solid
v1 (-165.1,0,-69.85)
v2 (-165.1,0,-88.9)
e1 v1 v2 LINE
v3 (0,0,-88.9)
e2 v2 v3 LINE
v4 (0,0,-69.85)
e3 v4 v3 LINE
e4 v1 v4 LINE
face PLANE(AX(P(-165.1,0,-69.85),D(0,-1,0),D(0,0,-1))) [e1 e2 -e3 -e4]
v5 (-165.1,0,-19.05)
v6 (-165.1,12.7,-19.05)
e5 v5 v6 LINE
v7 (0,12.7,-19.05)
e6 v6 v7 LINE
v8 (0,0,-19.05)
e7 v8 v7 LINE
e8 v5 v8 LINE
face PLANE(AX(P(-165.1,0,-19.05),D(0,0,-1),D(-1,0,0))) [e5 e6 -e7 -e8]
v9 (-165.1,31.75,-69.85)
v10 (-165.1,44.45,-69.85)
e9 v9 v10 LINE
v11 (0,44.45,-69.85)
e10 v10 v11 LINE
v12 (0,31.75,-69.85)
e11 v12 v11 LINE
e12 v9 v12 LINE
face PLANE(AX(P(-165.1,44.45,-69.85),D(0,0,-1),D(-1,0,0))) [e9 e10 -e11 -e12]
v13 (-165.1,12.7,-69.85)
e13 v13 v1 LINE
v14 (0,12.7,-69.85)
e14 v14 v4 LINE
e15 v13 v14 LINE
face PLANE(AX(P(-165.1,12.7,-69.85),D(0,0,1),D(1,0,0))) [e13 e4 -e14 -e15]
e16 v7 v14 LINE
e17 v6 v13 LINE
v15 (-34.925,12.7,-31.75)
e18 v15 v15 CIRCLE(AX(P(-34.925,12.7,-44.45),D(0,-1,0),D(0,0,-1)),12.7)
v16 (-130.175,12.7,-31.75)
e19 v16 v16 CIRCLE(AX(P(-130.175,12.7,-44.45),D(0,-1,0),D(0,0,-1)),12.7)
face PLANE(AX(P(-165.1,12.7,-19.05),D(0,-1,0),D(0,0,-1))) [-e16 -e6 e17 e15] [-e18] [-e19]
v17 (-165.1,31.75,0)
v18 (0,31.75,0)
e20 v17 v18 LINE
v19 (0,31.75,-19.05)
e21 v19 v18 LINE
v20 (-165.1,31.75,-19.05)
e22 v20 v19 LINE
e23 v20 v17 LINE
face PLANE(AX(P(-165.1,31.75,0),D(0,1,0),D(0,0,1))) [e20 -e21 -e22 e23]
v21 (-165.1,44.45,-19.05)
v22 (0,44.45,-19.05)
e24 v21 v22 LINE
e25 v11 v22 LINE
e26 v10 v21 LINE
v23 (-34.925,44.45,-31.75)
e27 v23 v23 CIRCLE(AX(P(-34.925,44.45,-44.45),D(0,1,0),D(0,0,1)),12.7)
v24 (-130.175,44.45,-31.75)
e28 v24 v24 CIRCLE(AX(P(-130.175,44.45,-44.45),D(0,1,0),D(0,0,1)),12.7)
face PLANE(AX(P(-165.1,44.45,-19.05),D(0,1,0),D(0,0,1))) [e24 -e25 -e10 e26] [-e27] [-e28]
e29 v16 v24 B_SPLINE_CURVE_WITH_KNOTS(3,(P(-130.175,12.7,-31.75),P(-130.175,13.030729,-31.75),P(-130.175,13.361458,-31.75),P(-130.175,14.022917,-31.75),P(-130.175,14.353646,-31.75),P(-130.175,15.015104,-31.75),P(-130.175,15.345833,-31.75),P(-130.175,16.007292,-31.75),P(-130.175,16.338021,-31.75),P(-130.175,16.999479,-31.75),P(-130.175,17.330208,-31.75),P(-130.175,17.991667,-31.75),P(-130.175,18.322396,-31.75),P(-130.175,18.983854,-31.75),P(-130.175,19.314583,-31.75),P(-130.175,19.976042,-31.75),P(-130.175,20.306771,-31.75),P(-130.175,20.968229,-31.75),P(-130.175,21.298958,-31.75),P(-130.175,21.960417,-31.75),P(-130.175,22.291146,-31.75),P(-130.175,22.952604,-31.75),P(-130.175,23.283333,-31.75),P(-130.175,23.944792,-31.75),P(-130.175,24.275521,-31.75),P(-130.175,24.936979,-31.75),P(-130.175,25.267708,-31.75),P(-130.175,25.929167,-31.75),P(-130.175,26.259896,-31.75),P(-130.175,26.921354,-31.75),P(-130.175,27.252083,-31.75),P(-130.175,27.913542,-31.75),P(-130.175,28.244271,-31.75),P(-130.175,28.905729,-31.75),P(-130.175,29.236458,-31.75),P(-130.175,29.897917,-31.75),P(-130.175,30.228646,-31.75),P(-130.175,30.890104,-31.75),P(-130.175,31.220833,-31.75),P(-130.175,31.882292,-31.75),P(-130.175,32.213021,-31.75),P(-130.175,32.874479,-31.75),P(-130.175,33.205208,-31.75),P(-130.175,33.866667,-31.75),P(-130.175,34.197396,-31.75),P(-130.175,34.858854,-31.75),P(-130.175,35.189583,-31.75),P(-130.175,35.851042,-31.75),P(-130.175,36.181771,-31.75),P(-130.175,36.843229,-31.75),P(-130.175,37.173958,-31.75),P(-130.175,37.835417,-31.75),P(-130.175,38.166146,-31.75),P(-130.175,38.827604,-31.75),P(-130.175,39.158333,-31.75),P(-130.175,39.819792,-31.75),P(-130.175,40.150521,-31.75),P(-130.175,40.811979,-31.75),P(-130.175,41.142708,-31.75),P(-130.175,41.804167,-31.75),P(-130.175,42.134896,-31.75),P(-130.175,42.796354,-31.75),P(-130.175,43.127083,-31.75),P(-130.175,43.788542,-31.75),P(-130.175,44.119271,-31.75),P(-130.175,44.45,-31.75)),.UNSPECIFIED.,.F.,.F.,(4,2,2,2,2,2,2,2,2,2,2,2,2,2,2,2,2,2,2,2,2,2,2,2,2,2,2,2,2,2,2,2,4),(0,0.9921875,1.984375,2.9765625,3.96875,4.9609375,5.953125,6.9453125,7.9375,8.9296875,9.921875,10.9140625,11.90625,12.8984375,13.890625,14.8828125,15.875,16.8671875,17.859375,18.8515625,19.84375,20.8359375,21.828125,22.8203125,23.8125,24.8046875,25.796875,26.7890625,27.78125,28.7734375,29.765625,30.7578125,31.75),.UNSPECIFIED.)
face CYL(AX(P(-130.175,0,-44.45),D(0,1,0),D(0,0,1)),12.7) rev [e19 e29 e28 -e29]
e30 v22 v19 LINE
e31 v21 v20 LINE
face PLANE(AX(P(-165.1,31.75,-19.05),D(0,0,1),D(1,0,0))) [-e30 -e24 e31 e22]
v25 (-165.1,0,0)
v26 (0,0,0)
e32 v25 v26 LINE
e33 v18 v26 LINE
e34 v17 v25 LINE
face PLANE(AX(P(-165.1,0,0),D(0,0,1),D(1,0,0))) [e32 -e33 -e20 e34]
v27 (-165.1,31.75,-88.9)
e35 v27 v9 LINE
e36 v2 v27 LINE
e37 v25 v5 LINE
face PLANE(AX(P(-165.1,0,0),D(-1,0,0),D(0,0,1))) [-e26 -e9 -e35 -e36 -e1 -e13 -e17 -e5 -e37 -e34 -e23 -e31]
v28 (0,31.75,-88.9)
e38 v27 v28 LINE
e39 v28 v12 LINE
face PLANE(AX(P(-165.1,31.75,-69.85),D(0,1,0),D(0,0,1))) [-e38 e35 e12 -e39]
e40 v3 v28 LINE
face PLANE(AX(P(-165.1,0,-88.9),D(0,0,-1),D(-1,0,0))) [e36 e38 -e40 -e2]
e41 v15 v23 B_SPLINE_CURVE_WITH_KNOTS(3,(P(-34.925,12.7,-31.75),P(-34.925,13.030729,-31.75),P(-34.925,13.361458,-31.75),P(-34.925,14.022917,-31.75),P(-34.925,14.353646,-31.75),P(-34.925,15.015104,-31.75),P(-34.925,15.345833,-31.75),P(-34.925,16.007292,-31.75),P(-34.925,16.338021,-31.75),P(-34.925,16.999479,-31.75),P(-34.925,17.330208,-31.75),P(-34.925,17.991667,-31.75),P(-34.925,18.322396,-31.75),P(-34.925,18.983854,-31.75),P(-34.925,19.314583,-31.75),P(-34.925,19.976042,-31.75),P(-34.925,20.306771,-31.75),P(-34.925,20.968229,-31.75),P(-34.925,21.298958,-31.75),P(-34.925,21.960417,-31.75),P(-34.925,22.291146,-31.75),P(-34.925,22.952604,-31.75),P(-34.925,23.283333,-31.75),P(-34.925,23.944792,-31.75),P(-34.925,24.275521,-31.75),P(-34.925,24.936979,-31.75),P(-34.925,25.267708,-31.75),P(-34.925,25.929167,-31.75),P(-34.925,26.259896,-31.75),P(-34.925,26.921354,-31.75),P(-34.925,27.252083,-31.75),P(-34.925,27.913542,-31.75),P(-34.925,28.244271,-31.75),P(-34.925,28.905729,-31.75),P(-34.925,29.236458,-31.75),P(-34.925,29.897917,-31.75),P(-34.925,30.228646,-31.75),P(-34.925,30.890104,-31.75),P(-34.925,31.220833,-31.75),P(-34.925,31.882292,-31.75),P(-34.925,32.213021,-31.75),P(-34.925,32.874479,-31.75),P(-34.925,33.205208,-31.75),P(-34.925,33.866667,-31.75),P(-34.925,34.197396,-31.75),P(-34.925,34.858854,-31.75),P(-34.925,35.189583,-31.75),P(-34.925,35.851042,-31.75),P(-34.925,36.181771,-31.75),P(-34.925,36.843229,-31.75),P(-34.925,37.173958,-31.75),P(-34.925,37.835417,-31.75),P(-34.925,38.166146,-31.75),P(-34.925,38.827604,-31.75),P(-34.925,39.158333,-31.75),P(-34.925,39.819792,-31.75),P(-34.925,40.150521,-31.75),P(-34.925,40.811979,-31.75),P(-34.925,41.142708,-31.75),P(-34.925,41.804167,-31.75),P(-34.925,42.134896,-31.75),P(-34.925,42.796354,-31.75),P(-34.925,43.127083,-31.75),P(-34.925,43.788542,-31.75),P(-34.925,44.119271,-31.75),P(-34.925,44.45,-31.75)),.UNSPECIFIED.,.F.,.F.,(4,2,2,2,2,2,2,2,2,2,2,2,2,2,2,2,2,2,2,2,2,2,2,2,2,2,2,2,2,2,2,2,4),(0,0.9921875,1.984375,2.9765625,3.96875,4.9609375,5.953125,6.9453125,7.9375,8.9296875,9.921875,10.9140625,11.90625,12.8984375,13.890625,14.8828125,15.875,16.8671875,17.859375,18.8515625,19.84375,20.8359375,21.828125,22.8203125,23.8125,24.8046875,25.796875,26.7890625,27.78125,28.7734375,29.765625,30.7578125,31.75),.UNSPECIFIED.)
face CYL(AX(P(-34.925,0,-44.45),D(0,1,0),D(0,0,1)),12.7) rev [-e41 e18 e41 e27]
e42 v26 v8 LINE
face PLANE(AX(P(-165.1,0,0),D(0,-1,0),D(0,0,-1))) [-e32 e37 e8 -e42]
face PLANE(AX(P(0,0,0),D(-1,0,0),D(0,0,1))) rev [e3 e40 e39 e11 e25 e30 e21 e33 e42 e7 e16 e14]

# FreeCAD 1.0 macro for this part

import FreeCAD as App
import Part
import Sketcher

V = App.Vector
Q = App.Units.Quantity


def add_polygon(sketch, points):
    """Adds a closed chain of lines whose ends are joined by coincident constraints."""
    first, n = sketch.GeometryCount, len(points)
    for a, b in zip(points, points[1:] + points[:1]):
        sketch.addGeometry(Part.LineSegment(App.Vector(*a, 0), App.Vector(*b, 0)), False)
    for i in range(n):
        sketch.addConstraint(Sketcher.Constraint("Coincident", first + i, 2, first + (i + 1) % n, 1))

doc = App.newDocument("Part")
body = doc.addObject("PartDesign::Body", "Body")

sketch1 = body.newObject("Sketcher::SketchObject", "Sketch")
sketch1.AttachmentSupport = (doc.getObject("YZ_Plane"), [""])
sketch1.MapMode = "FlatFace"
add_polygon(sketch1, [(0, -19.05), (12.7, -19.05), (12.7, -69.85), (0, -69.85), (0, -88.9), (31.75, -88.9), (31.75, -69.85), (44.45, -69.85), (44.45, -19.05), (31.75, -19.05), (31.75, 0), (0, 0)])
sketch1.addConstraint(Sketcher.Constraint("Horizontal", 0))
sketch1.addConstraint(Sketcher.Constraint("Vertical", 1))
sketch1.addConstraint(Sketcher.Constraint("Horizontal", 2))
sketch1.addConstraint(Sketcher.Constraint("Vertical", 3))
sketch1.addConstraint(Sketcher.Constraint("Horizontal", 4))
sketch1.addConstraint(Sketcher.Constraint("Vertical", 5))
sketch1.addConstraint(Sketcher.Constraint("Horizontal", 6))
sketch1.addConstraint(Sketcher.Constraint("Vertical", 7))
sketch1.addConstraint(Sketcher.Constraint("Horizontal", 8))
sketch1.addConstraint(Sketcher.Constraint("Vertical", 9))
sketch1.addConstraint(Sketcher.Constraint("Horizontal", 10))
sketch1.addConstraint(Sketcher.Constraint("Vertical", 11))
sketch1.addConstraint(Sketcher.Constraint("Coincident", 10, 2, -1, 1))
sketch1.addConstraint(Sketcher.Constraint("PointOnObject", 2, 2, -2))
sketch1.addConstraint(Sketcher.Constraint("Horizontal", 2, 2, 5, 2))
sketch1.addConstraint(Sketcher.Constraint("Horizontal", 0, 2, 7, 2))
sketch1.addConstraint(Sketcher.Constraint("Vertical", 5, 2, 8, 2))
sketch1.addConstraint(Sketcher.Constraint("Equal", 2, 6))
sketch1.addConstraint(Sketcher.Constraint("Equal", 5, 9))
sketch1.addConstraint(Sketcher.Constraint("DistanceY", 1, 2, 1, 1, Q("2 in")))
sketch1.addConstraint(Sketcher.Constraint("DistanceX", 0, 1, 0, 2, Q("0.5 in")))
sketch1.addConstraint(Sketcher.Constraint("DistanceX", 4, 1, 4, 2, Q("1.25 in")))
sketch1.addConstraint(Sketcher.Constraint("DistanceY", 3, 2, 3, 1, Q("0.75 in")))
pad1 = body.newObject("PartDesign::Pad", "Pad")
pad1.Profile = sketch1
pad1.Length = Q("6.5 in")
pad1.Reversed = True

sketch2 = body.newObject("Sketcher::SketchObject", "Sketch001")
sketch2.AttachmentSupport = (doc.getObject("XZ_Plane"), [""])
sketch2.MapMode = "FlatFace"
sketch2.AttachmentOffset = App.Placement(V(0, 0, -1.75 * 25.4), App.Rotation())
sketch2.addGeometry(Part.Circle(V(-130.175, -44.45, 0), V(0, 0, 1), 12.7), False)
sketch2.addGeometry(Part.Circle(V(-34.925, -44.45, 0), V(0, 0, 1), 12.7), False)
sketch2.addConstraint(Sketcher.Constraint("Equal", 0, 1))
sketch2.addConstraint(Sketcher.Constraint("Horizontal", 0, 3, 1, 3))
sketch2.addConstraint(Sketcher.Constraint("Diameter", 0, Q("1 in")))
sketch2.addConstraint(Sketcher.Constraint("DistanceY", 0, 3, -1, 1, Q("1.75 in")))
sketch2.addConstraint(Sketcher.Constraint("DistanceX", 0, 3, 1, 3, Q("3.75 in")))
sketch2.addConstraint(Sketcher.Constraint("DistanceX", 0, 3, -1, 1, Q("5.125 in")))
pocket1 = body.newObject("PartDesign::Pocket", "Pocket")
pocket1.Profile = sketch2
pocket1.Type = "ThroughAll"
pocket1.Reversed = True

doc.recompute()
